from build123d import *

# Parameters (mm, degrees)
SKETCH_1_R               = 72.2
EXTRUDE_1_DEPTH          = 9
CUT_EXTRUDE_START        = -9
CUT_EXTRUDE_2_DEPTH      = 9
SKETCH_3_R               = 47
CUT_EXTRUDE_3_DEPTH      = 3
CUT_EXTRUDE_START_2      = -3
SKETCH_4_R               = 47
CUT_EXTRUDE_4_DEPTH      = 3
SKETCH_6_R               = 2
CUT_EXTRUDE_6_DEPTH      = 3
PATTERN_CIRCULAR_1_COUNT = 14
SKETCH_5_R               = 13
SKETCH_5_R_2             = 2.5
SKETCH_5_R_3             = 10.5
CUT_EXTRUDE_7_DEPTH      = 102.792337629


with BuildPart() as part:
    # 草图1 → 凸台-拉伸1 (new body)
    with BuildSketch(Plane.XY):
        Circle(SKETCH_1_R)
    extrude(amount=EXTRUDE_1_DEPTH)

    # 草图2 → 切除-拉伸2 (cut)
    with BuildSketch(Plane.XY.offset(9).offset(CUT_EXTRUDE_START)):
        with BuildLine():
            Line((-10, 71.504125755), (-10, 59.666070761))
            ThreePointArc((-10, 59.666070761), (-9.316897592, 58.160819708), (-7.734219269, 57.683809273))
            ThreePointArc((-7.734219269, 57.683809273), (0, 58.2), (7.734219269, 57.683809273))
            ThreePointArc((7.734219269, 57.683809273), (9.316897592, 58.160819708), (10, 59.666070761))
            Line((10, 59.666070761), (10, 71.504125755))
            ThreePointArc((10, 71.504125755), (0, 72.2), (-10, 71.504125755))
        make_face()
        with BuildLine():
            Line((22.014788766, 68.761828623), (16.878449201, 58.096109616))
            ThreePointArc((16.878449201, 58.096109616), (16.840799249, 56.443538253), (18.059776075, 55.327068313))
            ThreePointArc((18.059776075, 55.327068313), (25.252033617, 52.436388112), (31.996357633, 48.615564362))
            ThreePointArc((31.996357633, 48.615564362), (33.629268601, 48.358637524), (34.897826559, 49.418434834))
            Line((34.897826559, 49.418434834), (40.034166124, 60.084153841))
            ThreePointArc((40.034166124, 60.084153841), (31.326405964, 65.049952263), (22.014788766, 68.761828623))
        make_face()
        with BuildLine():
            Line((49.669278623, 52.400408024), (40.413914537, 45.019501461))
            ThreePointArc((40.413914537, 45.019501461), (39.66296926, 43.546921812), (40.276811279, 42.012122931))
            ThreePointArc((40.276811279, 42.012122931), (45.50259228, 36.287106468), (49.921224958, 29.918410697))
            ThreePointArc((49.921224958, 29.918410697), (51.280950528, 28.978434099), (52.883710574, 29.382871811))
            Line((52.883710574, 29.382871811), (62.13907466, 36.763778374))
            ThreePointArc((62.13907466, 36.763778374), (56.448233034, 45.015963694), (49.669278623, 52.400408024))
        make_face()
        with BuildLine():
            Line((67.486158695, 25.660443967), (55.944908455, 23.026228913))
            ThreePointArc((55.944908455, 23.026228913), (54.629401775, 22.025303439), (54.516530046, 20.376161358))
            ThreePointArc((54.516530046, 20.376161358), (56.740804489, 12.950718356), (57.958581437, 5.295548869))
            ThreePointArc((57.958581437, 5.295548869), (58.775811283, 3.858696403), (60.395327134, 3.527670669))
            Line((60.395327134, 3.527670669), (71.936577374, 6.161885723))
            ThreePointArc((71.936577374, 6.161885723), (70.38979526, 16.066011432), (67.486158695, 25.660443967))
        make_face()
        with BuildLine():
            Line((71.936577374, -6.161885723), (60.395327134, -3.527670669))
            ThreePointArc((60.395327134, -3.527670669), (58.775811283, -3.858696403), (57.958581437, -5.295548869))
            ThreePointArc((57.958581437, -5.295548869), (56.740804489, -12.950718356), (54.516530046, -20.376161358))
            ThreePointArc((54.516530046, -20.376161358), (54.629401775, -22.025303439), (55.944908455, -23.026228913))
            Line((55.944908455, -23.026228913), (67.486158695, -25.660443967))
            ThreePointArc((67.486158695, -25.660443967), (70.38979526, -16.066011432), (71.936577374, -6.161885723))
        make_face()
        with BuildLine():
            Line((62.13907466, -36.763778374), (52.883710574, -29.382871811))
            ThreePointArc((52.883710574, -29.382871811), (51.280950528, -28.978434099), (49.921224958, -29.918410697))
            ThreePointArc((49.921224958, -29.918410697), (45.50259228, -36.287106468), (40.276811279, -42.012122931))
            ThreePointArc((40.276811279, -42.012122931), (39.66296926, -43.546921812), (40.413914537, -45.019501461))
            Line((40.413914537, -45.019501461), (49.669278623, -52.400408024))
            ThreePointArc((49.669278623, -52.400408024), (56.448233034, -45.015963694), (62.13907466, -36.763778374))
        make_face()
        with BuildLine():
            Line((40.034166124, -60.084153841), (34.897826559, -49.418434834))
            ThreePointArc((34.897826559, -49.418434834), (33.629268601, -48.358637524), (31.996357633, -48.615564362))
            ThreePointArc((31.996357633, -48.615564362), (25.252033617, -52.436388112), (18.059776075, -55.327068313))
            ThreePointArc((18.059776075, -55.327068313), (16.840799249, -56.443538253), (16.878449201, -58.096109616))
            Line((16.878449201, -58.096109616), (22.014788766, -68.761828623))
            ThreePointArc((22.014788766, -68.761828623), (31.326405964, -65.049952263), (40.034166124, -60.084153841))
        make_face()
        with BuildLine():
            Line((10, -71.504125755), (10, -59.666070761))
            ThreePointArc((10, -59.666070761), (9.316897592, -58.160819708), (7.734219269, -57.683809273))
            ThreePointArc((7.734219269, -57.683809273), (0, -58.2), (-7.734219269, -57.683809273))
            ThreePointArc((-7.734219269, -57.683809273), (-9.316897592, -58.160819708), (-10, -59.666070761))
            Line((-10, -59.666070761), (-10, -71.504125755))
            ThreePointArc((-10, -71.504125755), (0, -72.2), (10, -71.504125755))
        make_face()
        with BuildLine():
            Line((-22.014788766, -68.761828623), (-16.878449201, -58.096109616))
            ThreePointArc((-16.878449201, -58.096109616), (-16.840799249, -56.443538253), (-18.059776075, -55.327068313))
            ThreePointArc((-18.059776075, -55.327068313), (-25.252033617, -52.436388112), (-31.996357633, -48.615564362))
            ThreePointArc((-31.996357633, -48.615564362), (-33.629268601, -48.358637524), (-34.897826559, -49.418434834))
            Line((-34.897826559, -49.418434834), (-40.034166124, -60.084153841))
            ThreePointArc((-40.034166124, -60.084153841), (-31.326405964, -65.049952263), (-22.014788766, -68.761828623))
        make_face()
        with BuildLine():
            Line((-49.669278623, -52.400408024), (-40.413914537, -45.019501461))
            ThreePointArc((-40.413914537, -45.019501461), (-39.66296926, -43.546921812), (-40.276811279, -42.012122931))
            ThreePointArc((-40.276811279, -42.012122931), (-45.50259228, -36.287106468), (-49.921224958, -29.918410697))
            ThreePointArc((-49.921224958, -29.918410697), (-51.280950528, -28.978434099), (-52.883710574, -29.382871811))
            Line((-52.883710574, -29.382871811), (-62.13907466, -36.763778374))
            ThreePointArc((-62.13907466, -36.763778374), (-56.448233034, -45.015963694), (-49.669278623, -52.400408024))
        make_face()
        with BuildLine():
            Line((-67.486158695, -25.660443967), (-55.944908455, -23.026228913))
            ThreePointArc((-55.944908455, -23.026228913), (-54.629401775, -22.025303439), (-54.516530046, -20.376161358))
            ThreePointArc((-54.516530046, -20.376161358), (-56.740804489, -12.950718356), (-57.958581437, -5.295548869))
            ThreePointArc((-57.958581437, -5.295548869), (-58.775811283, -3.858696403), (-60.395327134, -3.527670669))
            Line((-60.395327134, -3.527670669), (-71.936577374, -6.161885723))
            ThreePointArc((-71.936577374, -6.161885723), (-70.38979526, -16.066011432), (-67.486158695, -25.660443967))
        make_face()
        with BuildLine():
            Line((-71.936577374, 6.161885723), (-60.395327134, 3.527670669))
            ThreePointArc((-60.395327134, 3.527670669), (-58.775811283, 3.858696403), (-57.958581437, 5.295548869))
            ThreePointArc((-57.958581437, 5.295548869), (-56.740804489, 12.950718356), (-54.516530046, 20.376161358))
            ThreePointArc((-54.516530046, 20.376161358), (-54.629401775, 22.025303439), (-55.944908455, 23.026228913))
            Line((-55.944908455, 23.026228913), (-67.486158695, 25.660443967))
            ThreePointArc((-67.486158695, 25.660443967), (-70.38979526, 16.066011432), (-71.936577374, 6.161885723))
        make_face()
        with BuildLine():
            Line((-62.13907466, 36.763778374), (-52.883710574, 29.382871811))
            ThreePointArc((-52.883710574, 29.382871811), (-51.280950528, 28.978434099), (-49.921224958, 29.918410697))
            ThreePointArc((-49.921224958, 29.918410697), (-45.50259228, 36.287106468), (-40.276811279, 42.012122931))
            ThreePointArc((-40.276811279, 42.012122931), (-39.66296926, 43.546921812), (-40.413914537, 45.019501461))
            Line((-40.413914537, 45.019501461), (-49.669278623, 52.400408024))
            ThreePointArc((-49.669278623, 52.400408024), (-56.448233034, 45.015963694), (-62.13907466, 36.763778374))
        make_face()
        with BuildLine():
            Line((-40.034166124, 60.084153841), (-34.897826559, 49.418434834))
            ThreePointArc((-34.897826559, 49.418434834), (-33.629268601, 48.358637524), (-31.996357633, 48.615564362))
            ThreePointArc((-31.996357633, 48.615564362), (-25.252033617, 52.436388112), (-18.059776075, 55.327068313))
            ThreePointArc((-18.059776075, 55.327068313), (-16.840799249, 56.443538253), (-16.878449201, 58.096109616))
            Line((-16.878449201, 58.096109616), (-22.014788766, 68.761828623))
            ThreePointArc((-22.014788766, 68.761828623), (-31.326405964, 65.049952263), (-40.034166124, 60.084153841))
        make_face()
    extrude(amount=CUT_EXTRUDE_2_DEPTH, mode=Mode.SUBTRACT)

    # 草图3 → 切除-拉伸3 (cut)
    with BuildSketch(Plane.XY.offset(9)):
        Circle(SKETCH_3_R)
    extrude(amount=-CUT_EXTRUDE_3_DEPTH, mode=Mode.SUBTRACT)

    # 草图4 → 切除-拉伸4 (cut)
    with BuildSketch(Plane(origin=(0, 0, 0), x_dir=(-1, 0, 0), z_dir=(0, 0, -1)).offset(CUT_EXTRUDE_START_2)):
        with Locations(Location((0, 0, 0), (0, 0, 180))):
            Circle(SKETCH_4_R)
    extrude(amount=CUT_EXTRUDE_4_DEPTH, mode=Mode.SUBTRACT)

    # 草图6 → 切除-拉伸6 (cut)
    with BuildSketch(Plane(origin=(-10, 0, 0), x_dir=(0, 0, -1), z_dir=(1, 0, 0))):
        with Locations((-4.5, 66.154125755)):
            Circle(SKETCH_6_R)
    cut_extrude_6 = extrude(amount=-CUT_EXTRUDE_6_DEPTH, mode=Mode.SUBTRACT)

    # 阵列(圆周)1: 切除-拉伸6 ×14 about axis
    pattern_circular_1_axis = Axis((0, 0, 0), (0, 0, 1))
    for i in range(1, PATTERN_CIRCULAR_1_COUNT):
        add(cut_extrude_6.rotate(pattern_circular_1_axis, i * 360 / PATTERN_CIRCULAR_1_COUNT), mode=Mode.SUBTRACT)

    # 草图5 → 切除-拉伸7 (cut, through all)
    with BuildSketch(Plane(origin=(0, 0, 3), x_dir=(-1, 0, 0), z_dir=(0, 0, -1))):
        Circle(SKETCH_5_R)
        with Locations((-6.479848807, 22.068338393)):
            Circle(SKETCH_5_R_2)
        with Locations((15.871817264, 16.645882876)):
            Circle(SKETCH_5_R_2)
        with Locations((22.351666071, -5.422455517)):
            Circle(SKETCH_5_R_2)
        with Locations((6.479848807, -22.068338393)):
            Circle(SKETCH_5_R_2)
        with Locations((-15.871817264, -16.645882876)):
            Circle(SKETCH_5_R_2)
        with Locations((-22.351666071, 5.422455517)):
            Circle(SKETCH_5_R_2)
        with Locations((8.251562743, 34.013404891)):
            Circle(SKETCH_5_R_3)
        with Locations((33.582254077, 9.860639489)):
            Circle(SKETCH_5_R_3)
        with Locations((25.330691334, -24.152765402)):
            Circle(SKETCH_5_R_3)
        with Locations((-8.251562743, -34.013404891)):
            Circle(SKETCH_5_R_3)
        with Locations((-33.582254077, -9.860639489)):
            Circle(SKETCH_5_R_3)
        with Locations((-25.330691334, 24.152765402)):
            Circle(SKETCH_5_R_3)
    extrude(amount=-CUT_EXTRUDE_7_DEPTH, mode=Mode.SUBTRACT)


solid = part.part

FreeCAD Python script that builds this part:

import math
import FreeCAD as App
import Part
import Sketcher
Q = App.Units.Quantity

doc = App.newDocument("Part")
params = doc.addObject("Spreadsheet::Sheet", "Params")
for row, (alias, value) in enumerate([
    ("sketch1_diameter", "144.4 mm"),
    ("pad1_length", "9 mm"),
    ("sketch2_radius", "2 mm"),
    ("sketch2_radius2", "58.2 mm"),
    ("sketch2_radius3", "72.2 mm"),
    ("pocket1_length", "9 mm"),
    ("sketch3_diameter", "94 mm"),
    ("pocket2_length", "3 mm"),
    ("sketch4_diameter", "94 mm"),
    ("pocket3_length", "3 mm"),
    ("sketch5_diameter", "4 mm"),
    ("pocket4_length", "3 mm"),
    ("sketch6_diameter", "26 mm"),
    ("sketch6_diameter2", "5 mm"),
    ("sketch6_diameter3", "21 mm"),
], start=1):
    params.set(f"A{row}", alias)
    params.set(f"B{row}", "=" + value)
    params.setAlias(f"B{row}", alias)

body = doc.addObject("PartDesign::Body", "Body")

# Sketch on XY plane
sketch1 = doc.addObject("Sketcher::SketchObject", "Sketch")
body.addObject(sketch1)
sketch1.AttachmentSupport = (doc.XY_Plane, [""])
sketch1.MapMode = "FlatFace"
sketch1.addGeometry(Part.Circle(App.Vector(0, 0, 0), App.Vector(0, 0, 1), 72.2), False)
sketch1.addConstraint([
    Sketcher.Constraint("Coincident", 0, 3, -1, 1),
    Sketcher.Constraint("Diameter", 0, Q("144.4 mm")),
])
sketch1.setExpression("Constraints[1]", "Params.sketch1_diameter")
pad1 = doc.addObject("PartDesign::Pad", "Pad")
body.addObject(pad1)
pad1.Profile = sketch1
pad1.setExpression("Length", "Params.pad1_length")

# Sketch on XY plane
sketch2 = doc.addObject("Sketcher::SketchObject", "Sketch001")
body.addObject(sketch2)
sketch2.AttachmentSupport = (doc.XY_Plane, [""])
sketch2.MapMode = "FlatFace"
sketch2.addGeometry([
    Part.LineSegment(App.Vector(-10, 71.504126, 0), App.Vector(-10, 59.666071, 0)),  # 0
    Part.ArcOfCircle(Part.Circle(App.Vector(-8, 59.666071, 0), App.Vector(0, 0, 1), 2), math.radians(180), math.radians(277.636648)),  # 1
    Part.ArcOfCircle(Part.Circle(App.Vector(0, 0, 0), App.Vector(0, 0, 1), 58.2), math.radians(82.363352), math.radians(97.636648)),  # 2
    Part.ArcOfCircle(Part.Circle(App.Vector(8, 59.666071, 0), App.Vector(0, 0, 1), 2), math.radians(-97.636648), math.radians(0)),  # 3
    Part.LineSegment(App.Vector(10, 59.666071, 0), App.Vector(10, 71.504126, 0)),  # 4
    Part.ArcOfCircle(Part.Circle(App.Vector(0, 0, 0), App.Vector(0, 0, 1), 72.2), math.radians(82.038703), math.radians(97.961297)),  # 5
    Part.LineSegment(App.Vector(22.014789, 68.761829, 0), App.Vector(16.878449, 58.09611, 0)),  # 6
    Part.ArcOfCircle(Part.Circle(App.Vector(18.680387, 57.228342, 0), App.Vector(0, 0, 1), 2), math.radians(154.285714), math.radians(251.922362)),  # 7
    Part.ArcOfCircle(Part.Circle(App.Vector(0, 0, 0), App.Vector(0, 0, 1), 58.2), math.radians(56.649067), math.radians(71.922362)),  # 8
    Part.ArcOfCircle(Part.Circle(App.Vector(33.095889, 50.286202, 0), App.Vector(0, 0, 1), 2), math.radians(-123.350933), math.radians(-25.714286)),  # 9
    Part.LineSegment(App.Vector(34.897827, 49.418435, 0), App.Vector(40.034166, 60.084154, 0)),  # 10
    Part.ArcOfCircle(Part.Circle(App.Vector(0, 0, 0), App.Vector(0, 0, 1), 72.2), math.radians(56.324417), math.radians(72.247012)),  # 11
    Part.LineSegment(App.Vector(49.669279, 52.400408, 0), App.Vector(40.413915, 45.019501, 0)),  # 12
    Part.ArcOfCircle(Part.Circle(App.Vector(41.660894, 43.455838, 0), App.Vector(0, 0, 1), 2), math.radians(128.571429), math.radians(226.208076)),  # 13
    Part.ArcOfCircle(Part.Circle(App.Vector(0, 0, 0), App.Vector(0, 0, 1), 58.2), math.radians(30.934781), math.radians(46.208076)),  # 14
    Part.ArcOfCircle(Part.Circle(App.Vector(51.636731, 30.946535, 0), App.Vector(0, 0, 1), 2), math.radians(-149.065219), math.radians(-51.428571)),  # 15
    Part.LineSegment(App.Vector(52.883711, 29.382872, 0), App.Vector(62.139075, 36.763778, 0)),  # 16
    Part.ArcOfCircle(Part.Circle(App.Vector(0, 0, 0), App.Vector(0, 0, 1), 72.2), math.radians(30.610131), math.radians(46.532726)),  # 17
    Part.LineSegment(App.Vector(67.486159, 25.660444, 0), App.Vector(55.944908, 23.026229, 0)),  # 18
    Part.ArcOfCircle(Part.Circle(App.Vector(56.38995, 21.076373, 0), App.Vector(0, 0, 1), 2), math.radians(102.857143), math.radians(200.49379)),  # 19
    Part.ArcOfCircle(Part.Circle(App.Vector(0, 0, 0), App.Vector(0, 0, 1), 58.2), math.radians(5.220495), math.radians(20.49379)),  # 20
    Part.ArcOfCircle(Part.Circle(App.Vector(59.950285, 5.477526, 0), App.Vector(0, 0, 1), 2), math.radians(-174.779505), math.radians(-77.142857)),  # 21
    Part.LineSegment(App.Vector(60.395327, 3.527671, 0), App.Vector(71.936577, 6.161886, 0)),  # 22
    Part.ArcOfCircle(Part.Circle(App.Vector(0, 0, 0), App.Vector(0, 0, 1), 72.2), math.radians(4.895845), math.radians(20.81844)),  # 23
    Part.LineSegment(App.Vector(71.936577, -6.161886, 0), App.Vector(60.395327, -3.527671, 0)),  # 24
    Part.ArcOfCircle(Part.Circle(App.Vector(59.950285, -5.477526, 0), App.Vector(0, 0, 1), 2), math.radians(77.142857), math.radians(174.779505)),  # 25
    Part.ArcOfCircle(Part.Circle(App.Vector(0, 0, 0), App.Vector(0, 0, 1), 58.2), math.radians(-20.49379), math.radians(-5.220495)),  # 26
    Part.ArcOfCircle(Part.Circle(App.Vector(56.38995, -21.076373, 0), App.Vector(0, 0, 1), 2), math.radians(159.50621), math.radians(257.142857)),  # 27
    Part.LineSegment(App.Vector(55.944908, -23.026229, 0), App.Vector(67.486159, -25.660444, 0)),  # 28
    Part.ArcOfCircle(Part.Circle(App.Vector(0, 0, 0), App.Vector(0, 0, 1), 72.2), math.radians(-20.81844), math.radians(-4.895845)),  # 29
    Part.LineSegment(App.Vector(62.139075, -36.763778, 0), App.Vector(52.883711, -29.382872, 0)),  # 30
    Part.ArcOfCircle(Part.Circle(App.Vector(51.636731, -30.946535, 0), App.Vector(0, 0, 1), 2), math.radians(51.428571), math.radians(149.065219)),  # 31
    Part.ArcOfCircle(Part.Circle(App.Vector(0, 0, 0), App.Vector(0, 0, 1), 58.2), math.radians(-46.208076), math.radians(-30.934781)),  # 32
    Part.ArcOfCircle(Part.Circle(App.Vector(41.660894, -43.455838, 0), App.Vector(0, 0, 1), 2), math.radians(133.791924), math.radians(231.428571)),  # 33
    Part.LineSegment(App.Vector(40.413915, -45.019501, 0), App.Vector(49.669279, -52.400408, 0)),  # 34
    Part.ArcOfCircle(Part.Circle(App.Vector(0, 0, 0), App.Vector(0, 0, 1), 72.2), math.radians(-46.532726), math.radians(-30.610131)),  # 35
    Part.LineSegment(App.Vector(40.034166, -60.084154, 0), App.Vector(34.897827, -49.418435, 0)),  # 36
    Part.ArcOfCircle(Part.Circle(App.Vector(33.095889, -50.286202, 0), App.Vector(0, 0, 1), 2), math.radians(25.714286), math.radians(123.350933)),  # 37
    Part.ArcOfCircle(Part.Circle(App.Vector(0, 0, 0), App.Vector(0, 0, 1), 58.2), math.radians(-71.922362), math.radians(-56.649067)),  # 38
    Part.ArcOfCircle(Part.Circle(App.Vector(18.680387, -57.228342, 0), App.Vector(0, 0, 1), 2), math.radians(108.077638), math.radians(205.714286)),  # 39
    Part.LineSegment(App.Vector(16.878449, -58.09611, 0), App.Vector(22.014789, -68.761829, 0)),  # 40
    Part.ArcOfCircle(Part.Circle(App.Vector(0, 0, 0), App.Vector(0, 0, 1), 72.2), math.radians(-72.247012), math.radians(-56.324417)),  # 41
    Part.LineSegment(App.Vector(10, -71.504126, 0), App.Vector(10, -59.666071, 0)),  # 42
    Part.ArcOfCircle(Part.Circle(App.Vector(8, -59.666071, 0), App.Vector(0, 0, 1), 2), math.radians(0), math.radians(97.636648)),  # 43
    Part.ArcOfCircle(Part.Circle(App.Vector(0, 0, 0), App.Vector(0, 0, 1), 58.2), math.radians(-97.636648), math.radians(-82.363352)),  # 44
    Part.ArcOfCircle(Part.Circle(App.Vector(-8, -59.666071, 0), App.Vector(0, 0, 1), 2), math.radians(82.363352), math.radians(180)),  # 45
    Part.LineSegment(App.Vector(-10, -59.666071, 0), App.Vector(-10, -71.504126, 0)),  # 46
    Part.ArcOfCircle(Part.Circle(App.Vector(0, 0, 0), App.Vector(0, 0, 1), 72.2), math.radians(-97.961297), math.radians(-82.038703)),  # 47
    Part.LineSegment(App.Vector(-22.014789, -68.761829, 0), App.Vector(-16.878449, -58.09611, 0)),  # 48
    Part.ArcOfCircle(Part.Circle(App.Vector(-18.680387, -57.228342, 0), App.Vector(0, 0, 1), 2), math.radians(-25.714286), math.radians(71.922362)),  # 49
    Part.ArcOfCircle(Part.Circle(App.Vector(0, 0, 0), App.Vector(0, 0, 1), 58.2), math.radians(-123.350933), math.radians(-108.077638)),  # 50
    Part.ArcOfCircle(Part.Circle(App.Vector(-33.095889, -50.286202, 0), App.Vector(0, 0, 1), 2), math.radians(56.649067), math.radians(154.285714)),  # 51
    Part.LineSegment(App.Vector(-34.897827, -49.418435, 0), App.Vector(-40.034166, -60.084154, 0)),  # 52
    Part.ArcOfCircle(Part.Circle(App.Vector(0, 0, 0), App.Vector(0, 0, 1), 72.2), math.radians(-123.675583), math.radians(-107.752988)),  # 53
    Part.LineSegment(App.Vector(-49.669279, -52.400408, 0), App.Vector(-40.413915, -45.019501, 0)),  # 54
    Part.ArcOfCircle(Part.Circle(App.Vector(-41.660894, -43.455838, 0), App.Vector(0, 0, 1), 2), math.radians(-51.428571), math.radians(46.208076)),  # 55
    Part.ArcOfCircle(Part.Circle(App.Vector(0, 0, 0), App.Vector(0, 0, 1), 58.2), math.radians(-149.065219), math.radians(-133.791924)),  # 56
    Part.ArcOfCircle(Part.Circle(App.Vector(-51.636731, -30.946535, 0), App.Vector(0, 0, 1), 2), math.radians(30.934781), math.radians(128.571429)),  # 57
    Part.LineSegment(App.Vector(-52.883711, -29.382872, 0), App.Vector(-62.139075, -36.763778, 0)),  # 58
    Part.ArcOfCircle(Part.Circle(App.Vector(0, 0, 0), App.Vector(0, 0, 1), 72.2), math.radians(-149.389869), math.radians(-133.467274)),  # 59
    Part.LineSegment(App.Vector(-67.486159, -25.660444, 0), App.Vector(-55.944908, -23.026229, 0)),  # 60
    Part.ArcOfCircle(Part.Circle(App.Vector(-56.38995, -21.076373, 0), App.Vector(0, 0, 1), 2), math.radians(-77.142857), math.radians(20.49379)),  # 61
    Part.ArcOfCircle(Part.Circle(App.Vector(0, 0, 0), App.Vector(0, 0, 1), 58.2), math.radians(-174.779505), math.radians(-159.50621)),  # 62
    Part.ArcOfCircle(Part.Circle(App.Vector(-59.950285, -5.477526, 0), App.Vector(0, 0, 1), 2), math.radians(5.220495), math.radians(102.857143)),  # 63
    Part.LineSegment(App.Vector(-60.395327, -3.527671, 0), App.Vector(-71.936577, -6.161886, 0)),  # 64
    Part.ArcOfCircle(Part.Circle(App.Vector(0, 0, 0), App.Vector(0, 0, 1), 72.2), math.radians(-175.104155), math.radians(-159.18156)),  # 65
    Part.LineSegment(App.Vector(-71.936577, 6.161886, 0), App.Vector(-60.395327, 3.527671, 0)),  # 66
    Part.ArcOfCircle(Part.Circle(App.Vector(-59.950285, 5.477526, 0), App.Vector(0, 0, 1), 2), math.radians(-102.857143), math.radians(-5.220495)),  # 67
    Part.ArcOfCircle(Part.Circle(App.Vector(0, 0, 0), App.Vector(0, 0, 1), 58.2), math.radians(159.50621), math.radians(174.779505)),  # 68
    Part.ArcOfCircle(Part.Circle(App.Vector(-56.38995, 21.076373, 0), App.Vector(0, 0, 1), 2), math.radians(-20.49379), math.radians(77.142857)),  # 69
    Part.LineSegment(App.Vector(-55.944908, 23.026229, 0), App.Vector(-67.486159, 25.660444, 0)),  # 70
    Part.ArcOfCircle(Part.Circle(App.Vector(0, 0, 0), App.Vector(0, 0, 1), 72.2), math.radians(159.18156), math.radians(175.104155)),  # 71
    Part.LineSegment(App.Vector(-62.139075, 36.763778, 0), App.Vector(-52.883711, 29.382872, 0)),  # 72
    Part.ArcOfCircle(Part.Circle(App.Vector(-51.636731, 30.946535, 0), App.Vector(0, 0, 1), 2), math.radians(-128.571429), math.radians(-30.934781)),  # 73
    Part.ArcOfCircle(Part.Circle(App.Vector(0, 0, 0), App.Vector(0, 0, 1), 58.2), math.radians(133.791924), math.radians(149.065219)),  # 74
    Part.ArcOfCircle(Part.Circle(App.Vector(-41.660894, 43.455838, 0), App.Vector(0, 0, 1), 2), math.radians(-46.208076), math.radians(51.428571)),  # 75
    Part.LineSegment(App.Vector(-40.413915, 45.019501, 0), App.Vector(-49.669279, 52.400408, 0)),  # 76
    Part.ArcOfCircle(Part.Circle(App.Vector(0, 0, 0), App.Vector(0, 0, 1), 72.2), math.radians(133.467274), math.radians(149.389869)),  # 77
    Part.LineSegment(App.Vector(-40.034166, 60.084154, 0), App.Vector(-34.897827, 49.418435, 0)),  # 78
    Part.ArcOfCircle(Part.Circle(App.Vector(-33.095889, 50.286202, 0), App.Vector(0, 0, 1), 2), math.radians(-154.285714), math.radians(-56.649067)),  # 79
    Part.ArcOfCircle(Part.Circle(App.Vector(0, 0, 0), App.Vector(0, 0, 1), 58.2), math.radians(108.077638), math.radians(123.350933)),  # 80
    Part.ArcOfCircle(Part.Circle(App.Vector(-18.680387, 57.228342, 0), App.Vector(0, 0, 1), 2), math.radians(-71.922362), math.radians(25.714286)),  # 81
    Part.LineSegment(App.Vector(-16.878449, 58.09611, 0), App.Vector(-22.014789, 68.761829, 0)),  # 82
    Part.ArcOfCircle(Part.Circle(App.Vector(0, 0, 0), App.Vector(0, 0, 1), 72.2), math.radians(107.752988), math.radians(123.675583)),  # 83
], False)
sketch2.addConstraint([
    Sketcher.Constraint("Tangent", 0, 2, 1, 1),
    Sketcher.Constraint("Tangent", 1, 2, 2, 2),
    Sketcher.Constraint("Tangent", 2, 1, 3, 1),
    Sketcher.Constraint("Tangent", 3, 2, 4, 1),
    Sketcher.Constraint("Coincident", 4, 2, 5, 1),
    Sketcher.Constraint("Coincident", 5, 2, 0, 1),
    Sketcher.Constraint("Tangent", 6, 2, 7, 1),
    Sketcher.Constraint("Tangent", 7, 2, 8, 2),
    Sketcher.Constraint("Tangent", 8, 1, 9, 1),
    Sketcher.Constraint("Tangent", 9, 2, 10, 1),
    Sketcher.Constraint("Coincident", 10, 2, 11, 1),
    Sketcher.Constraint("Coincident", 11, 2, 6, 1),
    Sketcher.Constraint("Tangent", 12, 2, 13, 1),
    Sketcher.Constraint("Tangent", 13, 2, 14, 2),
    Sketcher.Constraint("Tangent", 14, 1, 15, 1),
    Sketcher.Constraint("Tangent", 15, 2, 16, 1),
    Sketcher.Constraint("Coincident", 16, 2, 17, 1),
    Sketcher.Constraint("Coincident", 17, 2, 12, 1),
    Sketcher.Constraint("Tangent", 18, 2, 19, 1),
    Sketcher.Constraint("Tangent", 19, 2, 20, 2),
    Sketcher.Constraint("Tangent", 20, 1, 21, 1),
    Sketcher.Constraint("Tangent", 21, 2, 22, 1),
    Sketcher.Constraint("Coincident", 22, 2, 23, 1),
    Sketcher.Constraint("Coincident", 23, 2, 18, 1),
    Sketcher.Constraint("Tangent", 24, 2, 25, 1),
    Sketcher.Constraint("Tangent", 25, 2, 26, 2),
    Sketcher.Constraint("Tangent", 26, 1, 27, 1),
    Sketcher.Constraint("Tangent", 27, 2, 28, 1),
    Sketcher.Constraint("Coincident", 28, 2, 29, 1),
    Sketcher.Constraint("Coincident", 29, 2, 24, 1),
    Sketcher.Constraint("Tangent", 30, 2, 31, 1),
    Sketcher.Constraint("Tangent", 31, 2, 32, 2),
    Sketcher.Constraint("Tangent", 32, 1, 33, 1),
    Sketcher.Constraint("Tangent", 33, 2, 34, 1),
    Sketcher.Constraint("Coincident", 34, 2, 35, 1),
    Sketcher.Constraint("Coincident", 35, 2, 30, 1),
    Sketcher.Constraint("Tangent", 36, 2, 37, 1),
    Sketcher.Constraint("Tangent", 37, 2, 38, 2),
    Sketcher.Constraint("Tangent", 38, 1, 39, 1),
    Sketcher.Constraint("Tangent", 39, 2, 40, 1),
    Sketcher.Constraint("Coincident", 40, 2, 41, 1),
    Sketcher.Constraint("Coincident", 41, 2, 36, 1),
    Sketcher.Constraint("Tangent", 42, 2, 43, 1),
    Sketcher.Constraint("Tangent", 43, 2, 44, 2),
    Sketcher.Constraint("Tangent", 44, 1, 45, 1),
    Sketcher.Constraint("Tangent", 45, 2, 46, 1),
    Sketcher.Constraint("Coincident", 46, 2, 47, 1),
    Sketcher.Constraint("Coincident", 47, 2, 42, 1),
    Sketcher.Constraint("Tangent", 48, 2, 49, 1),
    Sketcher.Constraint("Tangent", 49, 2, 50, 2),
    Sketcher.Constraint("Tangent", 50, 1, 51, 1),
    Sketcher.Constraint("Tangent", 51, 2, 52, 1),
    Sketcher.Constraint("Coincident", 52, 2, 53, 1),
    Sketcher.Constraint("Coincident", 53, 2, 48, 1),
    Sketcher.Constraint("Tangent", 54, 2, 55, 1),
    Sketcher.Constraint("Tangent", 55, 2, 56, 2),
    Sketcher.Constraint("Tangent", 56, 1, 57, 1),
    Sketcher.Constraint("Tangent", 57, 2, 58, 1),
    Sketcher.Constraint("Coincident", 58, 2, 59, 1),
    Sketcher.Constraint("Coincident", 59, 2, 54, 1),
    Sketcher.Constraint("Tangent", 60, 2, 61, 1),
    Sketcher.Constraint("Tangent", 61, 2, 62, 2),
    Sketcher.Constraint("Tangent", 62, 1, 63, 1),
    Sketcher.Constraint("Tangent", 63, 2, 64, 1),
    Sketcher.Constraint("Coincident", 64, 2, 65, 1),
    Sketcher.Constraint("Coincident", 65, 2, 60, 1),
    Sketcher.Constraint("Tangent", 66, 2, 67, 1),
    Sketcher.Constraint("Tangent", 67, 2, 68, 2),
    Sketcher.Constraint("Tangent", 68, 1, 69, 1),
    Sketcher.Constraint("Tangent", 69, 2, 70, 1),
    Sketcher.Constraint("Coincident", 70, 2, 71, 1),
    Sketcher.Constraint("Coincident", 71, 2, 66, 1),
    Sketcher.Constraint("Tangent", 72, 2, 73, 1),
    Sketcher.Constraint("Tangent", 73, 2, 74, 2),
    Sketcher.Constraint("Tangent", 74, 1, 75, 1),
    Sketcher.Constraint("Tangent", 75, 2, 76, 1),
    Sketcher.Constraint("Coincident", 76, 2, 77, 1),
    Sketcher.Constraint("Coincident", 77, 2, 72, 1),
    Sketcher.Constraint("Tangent", 78, 2, 79, 1),
    Sketcher.Constraint("Tangent", 79, 2, 80, 2),
    Sketcher.Constraint("Tangent", 80, 1, 81, 1),
    Sketcher.Constraint("Tangent", 81, 2, 82, 1),
    Sketcher.Constraint("Coincident", 82, 2, 83, 1),
    Sketcher.Constraint("Coincident", 83, 2, 78, 1),
    Sketcher.Constraint("Vertical", 0),
    Sketcher.Constraint("Vertical", 4),
    Sketcher.Constraint("Vertical", 42),
    Sketcher.Constraint("Vertical", 46),
    Sketcher.Constraint("Coincident", 2, 3, -1, 1),
    Sketcher.Constraint("Coincident", 5, 3, -1, 1),
    Sketcher.Constraint("Coincident", 8, 3, -1, 1),
    Sketcher.Constraint("Coincident", 11, 3, -1, 1),
    Sketcher.Constraint("Coincident", 14, 3, -1, 1),
    Sketcher.Constraint("Coincident", 17, 3, -1, 1),
    Sketcher.Constraint("Coincident", 20, 3, -1, 1),
    Sketcher.Constraint("Coincident", 23, 3, -1, 1),
    Sketcher.Constraint("Coincident", 26, 3, -1, 1),
    Sketcher.Constraint("Coincident", 29, 3, -1, 1),
    Sketcher.Constraint("Coincident", 32, 3, -1, 1),
    Sketcher.Constraint("Coincident", 35, 3, -1, 1),
    Sketcher.Constraint("Coincident", 38, 3, -1, 1),
    Sketcher.Constraint("Coincident", 41, 3, -1, 1),
    Sketcher.Constraint("Coincident", 44, 3, -1, 1),
    Sketcher.Constraint("Coincident", 47, 3, -1, 1),
    Sketcher.Constraint("Coincident", 50, 3, -1, 1),
    Sketcher.Constraint("Coincident", 53, 3, -1, 1),
    Sketcher.Constraint("Coincident", 56, 3, -1, 1),
    Sketcher.Constraint("Coincident", 59, 3, -1, 1),
    Sketcher.Constraint("Coincident", 62, 3, -1, 1),
    Sketcher.Constraint("Coincident", 65, 3, -1, 1),
    Sketcher.Constraint("Coincident", 68, 3, -1, 1),
    Sketcher.Constraint("Coincident", 71, 3, -1, 1),
    Sketcher.Constraint("Coincident", 74, 3, -1, 1),
    Sketcher.Constraint("Coincident", 77, 3, -1, 1),
    Sketcher.Constraint("Coincident", 80, 3, -1, 1),
    Sketcher.Constraint("Coincident", 83, 3, -1, 1),
    Sketcher.Constraint("Equal", 1, 3),
    Sketcher.Constraint("Equal", 3, 7),
    Sketcher.Constraint("Equal", 2, 8),
    Sketcher.Constraint("Equal", 7, 9),
    Sketcher.Constraint("Equal", 5, 11),
    Sketcher.Constraint("Equal", 9, 13),
    Sketcher.Constraint("Equal", 8, 14),
    Sketcher.Constraint("Equal", 13, 15),
    Sketcher.Constraint("Equal", 11, 17),
    Sketcher.Constraint("Equal", 15, 19),
    Sketcher.Constraint("Equal", 14, 20),
    Sketcher.Constraint("Equal", 19, 21),
    Sketcher.Constraint("Equal", 17, 23),
    Sketcher.Constraint("Equal", 21, 25),
    Sketcher.Constraint("Equal", 20, 26),
    Sketcher.Constraint("Equal", 25, 27),
    Sketcher.Constraint("Equal", 23, 29),
    Sketcher.Constraint("Equal", 27, 31),
    Sketcher.Constraint("Equal", 26, 32),
    Sketcher.Constraint("Equal", 31, 33),
    Sketcher.Constraint("Equal", 29, 35),
    Sketcher.Constraint("Equal", 33, 37),
    Sketcher.Constraint("Equal", 32, 38),
    Sketcher.Constraint("Equal", 37, 39),
    Sketcher.Constraint("Equal", 35, 41),
    Sketcher.Constraint("Equal", 39, 43),
    Sketcher.Constraint("Equal", 38, 44),
    Sketcher.Constraint("Equal", 43, 45),
    Sketcher.Constraint("Equal", 41, 47),
    Sketcher.Constraint("Equal", 45, 49),
    Sketcher.Constraint("Equal", 44, 50),
    Sketcher.Constraint("Equal", 49, 51),
    Sketcher.Constraint("Equal", 47, 53),
    Sketcher.Constraint("Equal", 51, 55),
    Sketcher.Constraint("Equal", 50, 56),
    Sketcher.Constraint("Equal", 55, 57),
    Sketcher.Constraint("Equal", 53, 59),
    Sketcher.Constraint("Equal", 57, 61),
    Sketcher.Constraint("Equal", 56, 62),
    Sketcher.Constraint("Equal", 61, 63),
    Sketcher.Constraint("Equal", 59, 65),
    Sketcher.Constraint("Equal", 63, 67),
    Sketcher.Constraint("Equal", 62, 68),
    Sketcher.Constraint("Equal", 67, 69),
    Sketcher.Constraint("Equal", 65, 71),
    Sketcher.Constraint("Equal", 69, 73),
    Sketcher.Constraint("Equal", 68, 74),
    Sketcher.Constraint("Equal", 73, 75),
    Sketcher.Constraint("Equal", 71, 77),
    Sketcher.Constraint("Equal", 75, 79),
    Sketcher.Constraint("Equal", 74, 80),
    Sketcher.Constraint("Equal", 79, 81),
    Sketcher.Constraint("Equal", 77, 83),
    Sketcher.Constraint("Symmetric", 6, 2, 48, 2, -1, 1),
    Sketcher.Constraint("Symmetric", 9, 2, 51, 2, -1, 1),
    Sketcher.Constraint("Symmetric", 12, 2, 54, 2, -1, 1),
    Sketcher.Constraint("Symmetric", 15, 2, 57, 2, -1, 1),
    Sketcher.Constraint("Symmetric", 18, 2, 60, 2, -1, 1),
    Sketcher.Constraint("Symmetric", 21, 2, 63, 2, -1, 1),
    Sketcher.Constraint("Symmetric", 24, 2, 66, 2, -1, 1),
    Sketcher.Constraint("Symmetric", 27, 2, 69, 2, -1, 1),
    Sketcher.Constraint("Symmetric", 30, 2, 72, 2, -1, 1),
    Sketcher.Constraint("Symmetric", 33, 2, 75, 2, -1, 1),
    Sketcher.Constraint("Symmetric", 36, 2, 78, 2, -1, 1),
    Sketcher.Constraint("Symmetric", 39, 2, 81, 2, -1, 1),
    Sketcher.Constraint("Symmetric", 39, 2, 48, 2, -2),
    Sketcher.Constraint("Symmetric", 36, 2, 51, 2, -2),
    Sketcher.Constraint("Symmetric", 33, 2, 54, 2, -2),
    Sketcher.Constraint("Symmetric", 30, 2, 57, 2, -2),
    Sketcher.Constraint("Symmetric", 27, 2, 60, 2, -2),
    Sketcher.Constraint("Symmetric", 24, 2, 63, 2, -2),
    Sketcher.Constraint("Parallel", 6, 10),
    Sketcher.Constraint("Parallel", 12, 16),
    Sketcher.Constraint("Parallel", 18, 22),
    Sketcher.Constraint("Horizontal", 1, 3, 3, 3),
    Sketcher.Constraint("Horizontal", 43, 3, 45, 3),
    Sketcher.Constraint("Vertical", 3, 3, 43, 3),
    Sketcher.Constraint("Equal", 6, 10),
    Sketcher.Constraint("Equal", 10, 12),
    Sketcher.Constraint("Equal", 16, 18),
    Sketcher.Constraint("Equal", 18, 22),
    Sketcher.Constraint("Radius", 1, Q("2 mm")),
    Sketcher.Constraint("Radius", 2, Q("58.2 mm")),
    Sketcher.Constraint("Radius", 5, Q("72.2 mm")),
    Sketcher.Constraint("DistanceX", 1, 3, -1, 1, Q("8 mm")),
    Sketcher.Constraint("DistanceY", -1, 1, 12, 2, Q("45.019501 mm")),
    Sketcher.Constraint("DistanceX", -1, 1, 9, 3, Q("33.095889 mm")),
    Sketcher.Constraint("DistanceY", -1, 1, 13, 3, Q("43.455838 mm")),
    Sketcher.Constraint("DistanceX", -1, 1, 15, 3, Q("51.636731 mm")),
    Sketcher.Constraint("DistanceX", -1, 1, 19, 3, Q("56.38995 mm")),
])
sketch2.setExpression("Constraints[197]", "Params.sketch2_radius")
sketch2.setExpression("Constraints[198]", "Params.sketch2_radius2")
sketch2.setExpression("Constraints[199]", "Params.sketch2_radius3")
pocket1 = doc.addObject("PartDesign::Pocket", "Pocket")
body.addObject(pocket1)
pocket1.Profile = sketch2
pocket1.setExpression("Length", "Params.pocket1_length")
pocket1.Reversed = True

# Sketch on XY plane
sketch3 = doc.addObject("Sketcher::SketchObject", "Sketch002")
body.addObject(sketch3)
sketch3.AttachmentSupport = (doc.XY_Plane, [""])
sketch3.MapMode = "FlatFace"
sketch3.AttachmentOffset = App.Placement(App.Vector(0, 0, 9), App.Rotation())
sketch3.addGeometry(Part.Circle(App.Vector(0, 0, 0), App.Vector(0, 0, 1), 47), False)
sketch3.addConstraint([
    Sketcher.Constraint("Coincident", 0, 3, -1, 1),
    Sketcher.Constraint("Diameter", 0, Q("94 mm")),
])
sketch3.setExpression("Constraints[1]", "Params.sketch3_diameter")
pocket2 = doc.addObject("PartDesign::Pocket", "Pocket001")
body.addObject(pocket2)
pocket2.Profile = sketch3
pocket2.setExpression("Length", "Params.pocket2_length")

# Sketch on XY plane
sketch4 = doc.addObject("Sketcher::SketchObject", "Sketch003")
body.addObject(sketch4)
sketch4.AttachmentSupport = (doc.XY_Plane, [""])
sketch4.MapMode = "FlatFace"
sketch4.AttachmentOffset = App.Placement(App.Vector(0, 0, 3), App.Rotation())
sketch4.addGeometry(Part.Circle(App.Vector(0, 0, 0), App.Vector(0, 0, 1), 47), False)
sketch4.addConstraint([
    Sketcher.Constraint("Coincident", 0, 3, -1, 1),
    Sketcher.Constraint("Diameter", 0, Q("94 mm")),
])
sketch4.setExpression("Constraints[1]", "Params.sketch4_diameter")
pocket3 = doc.addObject("PartDesign::Pocket", "Pocket002")
body.addObject(pocket3)
pocket3.Profile = sketch4
pocket3.setExpression("Length", "Params.pocket3_length")

# Sketch on YZ plane
sketch5 = doc.addObject("Sketcher::SketchObject", "Sketch004")
body.addObject(sketch5)
sketch5.AttachmentSupport = (doc.YZ_Plane, [""])
sketch5.MapMode = "FlatFace"
sketch5.AttachmentOffset = App.Placement(App.Vector(0, 0, -10), App.Rotation())
sketch5.addGeometry(Part.Circle(App.Vector(66.154126, 4.5, 0), App.Vector(0, 0, 1), 2), False)
sketch5.addConstraint([
    Sketcher.Constraint("Diameter", 0, Q("4 mm")),
    Sketcher.Constraint("DistanceY", -1, 1, 0, 3, Q("4.5 mm")),
    Sketcher.Constraint("DistanceX", -1, 1, 0, 3, Q("66.154126 mm")),
])
sketch5.setExpression("Constraints[0]", "Params.sketch5_diameter")
pocket4 = doc.addObject("PartDesign::Pocket", "Pocket003")
body.addObject(pocket4)
pocket4.Profile = sketch5
pocket4.setExpression("Length", "Params.pocket4_length")
doc.recompute()

polarpattern = doc.addObject("PartDesign::PolarPattern", "PolarPattern")
body.addObject(polarpattern)
polarpattern.Originals = [pocket4]
polarpattern.Axis = (doc.Z_Axis, [""])
polarpattern.Angle = 360
polarpattern.Occurrences = 14
body.Tip = polarpattern

# Sketch on XY plane
sketch6 = doc.addObject("Sketcher::SketchObject", "Sketch005")
body.addObject(sketch6)
sketch6.AttachmentSupport = (doc.XY_Plane, [""])
sketch6.MapMode = "FlatFace"
sketch6.AttachmentOffset = App.Placement(App.Vector(0, 0, 3), App.Rotation())
sketch6.addGeometry([
    Part.Circle(App.Vector(0, 0, 0), App.Vector(0, 0, 1), 13),  # 0
    Part.Circle(App.Vector(6.479849, 22.068338, 0), App.Vector(0, 0, 1), 2.5),  # 1
    Part.Circle(App.Vector(-15.871817, 16.645883, 0), App.Vector(0, 0, 1), 2.5),  # 2
    Part.Circle(App.Vector(-22.351666, -5.422456, 0), App.Vector(0, 0, 1), 2.5),  # 3
    Part.Circle(App.Vector(-6.479849, -22.068338, 0), App.Vector(0, 0, 1), 2.5),  # 4
    Part.Circle(App.Vector(15.871817, -16.645883, 0), App.Vector(0, 0, 1), 2.5),  # 5
    Part.Circle(App.Vector(22.351666, 5.422456, 0), App.Vector(0, 0, 1), 2.5),  # 6
    Part.Circle(App.Vector(-8.251563, 34.013405, 0), App.Vector(0, 0, 1), 10.5),  # 7
    Part.Circle(App.Vector(-33.582254, 9.860639, 0), App.Vector(0, 0, 1), 10.5),  # 8
    Part.Circle(App.Vector(-25.330691, -24.152765, 0), App.Vector(0, 0, 1), 10.5),  # 9
    Part.Circle(App.Vector(8.251563, -34.013405, 0), App.Vector(0, 0, 1), 10.5),  # 10
    Part.Circle(App.Vector(33.582254, -9.860639, 0), App.Vector(0, 0, 1), 10.5),  # 11
    Part.Circle(App.Vector(25.330691, 24.152765, 0), App.Vector(0, 0, 1), 10.5),  # 12
], False)
sketch6.addConstraint([
    Sketcher.Constraint("Coincident", 0, 3, -1, 1),
    Sketcher.Constraint("Equal", 1, 2),
    Sketcher.Constraint("Equal", 2, 3),
    Sketcher.Constraint("Equal", 3, 4),
    Sketcher.Constraint("Equal", 4, 5),
    Sketcher.Constraint("Equal", 5, 6),
    Sketcher.Constraint("Equal", 7, 8),
    Sketcher.Constraint("Equal", 8, 9),
    Sketcher.Constraint("Equal", 9, 10),
    Sketcher.Constraint("Equal", 10, 11),
    Sketcher.Constraint("Equal", 11, 12),
    Sketcher.Constraint("Symmetric", 1, 3, 4, 3, -1, 1),
    Sketcher.Constraint("Symmetric", 2, 3, 5, 3, -1, 1),
    Sketcher.Constraint("Symmetric", 3, 3, 6, 3, -1, 1),
    Sketcher.Constraint("Symmetric", 7, 3, 10, 3, -1, 1),
    Sketcher.Constraint("Symmetric", 8, 3, 11, 3, -1, 1),
    Sketcher.Constraint("Symmetric", 9, 3, 12, 3, -1, 1),
    Sketcher.Constraint("Diameter", 0, Q("26 mm")),
    Sketcher.Constraint("Diameter", 1, Q("5 mm")),
    Sketcher.Constraint("Diameter", 7, Q("21 mm")),
    Sketcher.Constraint("DistanceX", -1, 1, 1, 3, Q("6.479849 mm")),
    Sketcher.Constraint("DistanceY", -1, 1, 1, 3, Q("22.068338 mm")),
    Sketcher.Constraint("DistanceY", -1, 1, 8, 3, Q("9.860639 mm")),
    Sketcher.Constraint("DistanceX", 9, 3, -1, 1, Q("25.330691 mm")),
    Sketcher.Constraint("DistanceX", 3, 3, 2, 3, Q("6.479849 mm")),
    Sketcher.Constraint("DistanceY", 3, 3, 2, 3, Q("22.068338 mm")),
    Sketcher.Constraint("DistanceX", 2, 3, 4, 3, Q("9.391968 mm")),
    Sketcher.Constraint("DistanceY", 4, 3, 2, 3, Q("38.714221 mm")),
    Sketcher.Constraint("DistanceX", 7, 3, 1, 3, Q("14.731412 mm")),
    Sketcher.Constraint("DistanceY", 6, 3, 7, 3, Q("28.590949 mm")),
    Sketcher.Constraint("DistanceX", 8, 3, 3, 3, Q("11.230588 mm")),
    Sketcher.Constraint("DistanceY", 9, 3, 3, 3, Q("18.73031 mm")),
])
sketch6.setExpression("Constraints[17]", "Params.sketch6_diameter")
sketch6.setExpression("Constraints[18]", "Params.sketch6_diameter2")
sketch6.setExpression("Constraints[19]", "Params.sketch6_diameter3")
pocket5 = doc.addObject("PartDesign::Pocket", "Pocket004")
body.addObject(pocket5)
pocket5.Profile = sketch6
pocket5.Type = "ThroughAll"
pocket5.Reversed = True

doc.recompute()
